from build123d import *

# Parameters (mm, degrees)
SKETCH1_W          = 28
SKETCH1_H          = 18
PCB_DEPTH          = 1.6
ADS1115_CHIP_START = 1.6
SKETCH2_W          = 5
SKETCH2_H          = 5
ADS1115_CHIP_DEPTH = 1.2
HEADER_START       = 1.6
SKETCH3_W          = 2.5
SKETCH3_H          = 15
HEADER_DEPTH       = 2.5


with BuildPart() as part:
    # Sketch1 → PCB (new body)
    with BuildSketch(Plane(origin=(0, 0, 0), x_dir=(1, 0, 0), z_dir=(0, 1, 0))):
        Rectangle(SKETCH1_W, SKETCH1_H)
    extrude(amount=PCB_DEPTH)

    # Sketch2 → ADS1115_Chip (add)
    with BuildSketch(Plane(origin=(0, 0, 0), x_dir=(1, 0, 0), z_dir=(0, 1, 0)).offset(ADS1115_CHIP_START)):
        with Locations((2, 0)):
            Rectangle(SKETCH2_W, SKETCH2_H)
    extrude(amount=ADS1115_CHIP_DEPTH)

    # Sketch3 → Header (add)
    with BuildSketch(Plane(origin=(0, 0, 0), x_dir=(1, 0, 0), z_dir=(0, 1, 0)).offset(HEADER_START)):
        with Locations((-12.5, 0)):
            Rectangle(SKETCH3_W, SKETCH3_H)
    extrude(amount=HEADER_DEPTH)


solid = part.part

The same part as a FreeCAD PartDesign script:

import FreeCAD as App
import Part
import Sketcher

V = App.Vector

doc = App.newDocument("Part")
params = doc.addObject("Spreadsheet::Sheet", "Params")
for row, (alias, value) in enumerate([
    ("sketch1_width", "28 mm"),
    ("sketch1_height", "18 mm"),
    ("pad1_length", "1.6 mm"),
    ("sketch2_width", "5 mm"),
    ("pad2_length", "1.2 mm"),
    ("sketch3_height", "15 mm"),
    ("sketch3_width", "2.5 mm"),
    ("pad3_length", "2.5 mm"),
], start=1):
    params.set(f"A{row}", alias)
    params.set(f"B{row}", "=" + value)
    params.setAlias(f"B{row}", alias)

body = doc.addObject("PartDesign::Body", "Body")

sketch1 = doc.addObject("Sketcher::SketchObject", "Sketch")
body.addObject(sketch1)
sketch1.AttachmentSupport = (doc.XZ_Plane, [""])
sketch1.MapMode = "FlatFace"
sketch1.addGeometry([
    Part.LineSegment(V(-14, -9, 0), V(-14, 9, 0)),
    Part.LineSegment(V(-14, 9, 0), V(14, 9, 0)),
    Part.LineSegment(V(14, 9, 0), V(14, -9, 0)),
    Part.LineSegment(V(14, -9, 0), V(-14, -9, 0)),
], False)
sketch1.addConstraint([
    Sketcher.Constraint("Coincident", 0, 2, 1, 1),
    Sketcher.Constraint("Coincident", 1, 2, 2, 1),
    Sketcher.Constraint("Coincident", 2, 2, 3, 1),
    Sketcher.Constraint("Coincident", 3, 2, 0, 1),
    Sketcher.Constraint("Vertical", 0),
    Sketcher.Constraint("Horizontal", 1),
    Sketcher.Constraint("Vertical", 2),
    Sketcher.Constraint("Horizontal", 3),
    Sketcher.Constraint("Symmetric", 0, 2, 2, 2, -1, 1),
    Sketcher.Constraint("DistanceX", 1, 1, 1, 2, 28.0),
    Sketcher.Constraint("DistanceY", 0, 1, 0, 2, 18.0),
])
sketch1.setExpression("Constraints[9]", "Params.sketch1_width")
sketch1.setExpression("Constraints[10]", "Params.sketch1_height")
pad1 = doc.addObject("PartDesign::Pad", "Pad")
body.addObject(pad1)
pad1.Profile = sketch1
pad1.setExpression("Length", "Params.pad1_length")
pad1.Reversed = True

sketch2 = doc.addObject("Sketcher::SketchObject", "Sketch001")
body.addObject(sketch2)
sketch2.AttachmentSupport = (doc.XZ_Plane, [""])
sketch2.MapMode = "FlatFace"
sketch2.AttachmentOffset = App.Placement(V(0, 0, -1.6), App.Rotation())
sketch2.addGeometry([
    Part.LineSegment(V(0, -2, 0), V(0, 2, 0)),
    Part.LineSegment(V(0, 2, 0), V(4, 2, 0)),
    Part.LineSegment(V(4, 2, 0), V(4, -2, 0)),
    Part.LineSegment(V(4, -2, 0), V(0, -2, 0)),
], False)
sketch2.addConstraint([
    Sketcher.Constraint("Coincident", 0, 2, 1, 1),
    Sketcher.Constraint("Coincident", 1, 2, 2, 1),
    Sketcher.Constraint("Coincident", 2, 2, 3, 1),
    Sketcher.Constraint("Coincident", 3, 2, 0, 1),
    Sketcher.Constraint("Vertical", 0),
    Sketcher.Constraint("Horizontal", 1),
    Sketcher.Constraint("Vertical", 2),
    Sketcher.Constraint("Horizontal", 3),
    Sketcher.Constraint("Equal", 3, 0),
    Sketcher.Constraint("DistanceX", 1, 1, 1, 2, 5.0),
    Sketcher.Constraint("DistanceX", 0, 2, -1, 1, 0.5),
    Sketcher.Constraint("DistanceY", -1, 1, 0, 2, 2.5),
])
sketch2.setExpression("Constraints[9]", "Params.sketch2_width")
pad2 = doc.addObject("PartDesign::Pad", "Pad001")
body.addObject(pad2)
pad2.Profile = sketch2
pad2.setExpression("Length", "Params.pad2_length")
pad2.Reversed = True

sketch3 = doc.addObject("Sketcher::SketchObject", "Sketch002")
body.addObject(sketch3)
sketch3.AttachmentSupport = (doc.XZ_Plane, [""])
sketch3.MapMode = "FlatFace"
sketch3.AttachmentOffset = App.Placement(V(0, 0, -1.6), App.Rotation())
sketch3.addGeometry([
    Part.LineSegment(V(-13.8, -7.5, 0), V(-13.8, 7.5, 0)),
    Part.LineSegment(V(-13.8, 7.5, 0), V(-11.2, 7.5, 0)),
    Part.LineSegment(V(-11.2, 7.5, 0), V(-11.2, -7.5, 0)),
    Part.LineSegment(V(-11.2, -7.5, 0), V(-13.8, -7.5, 0)),
], False)
sketch3.addConstraint([
    Sketcher.Constraint("Coincident", 0, 2, 1, 1),
    Sketcher.Constraint("Coincident", 1, 2, 2, 1),
    Sketcher.Constraint("Coincident", 2, 2, 3, 1),
    Sketcher.Constraint("Coincident", 3, 2, 0, 1),
    Sketcher.Constraint("Vertical", 0),
    Sketcher.Constraint("Horizontal", 1),
    Sketcher.Constraint("Vertical", 2),
    Sketcher.Constraint("Horizontal", 3),
    Sketcher.Constraint("DistanceY", 0, 1, 0, 2, 15.0),
    Sketcher.Constraint("DistanceX", 1, 1, 1, 2, 2.5),
    Sketcher.Constraint("DistanceY", -1, 1, 0, 2, 7.5),
    Sketcher.Constraint("DistanceX", 0, 2, -1, 1, 13.75),
])
sketch3.setExpression("Constraints[8]", "Params.sketch3_height")
sketch3.setExpression("Constraints[9]", "Params.sketch3_width")
pad3 = doc.addObject("PartDesign::Pad", "Pad002")
body.addObject(pad3)
pad3.Profile = sketch3
pad3.setExpression("Length", "Params.pad3_length")
pad3.Reversed = True

doc.recompute()
